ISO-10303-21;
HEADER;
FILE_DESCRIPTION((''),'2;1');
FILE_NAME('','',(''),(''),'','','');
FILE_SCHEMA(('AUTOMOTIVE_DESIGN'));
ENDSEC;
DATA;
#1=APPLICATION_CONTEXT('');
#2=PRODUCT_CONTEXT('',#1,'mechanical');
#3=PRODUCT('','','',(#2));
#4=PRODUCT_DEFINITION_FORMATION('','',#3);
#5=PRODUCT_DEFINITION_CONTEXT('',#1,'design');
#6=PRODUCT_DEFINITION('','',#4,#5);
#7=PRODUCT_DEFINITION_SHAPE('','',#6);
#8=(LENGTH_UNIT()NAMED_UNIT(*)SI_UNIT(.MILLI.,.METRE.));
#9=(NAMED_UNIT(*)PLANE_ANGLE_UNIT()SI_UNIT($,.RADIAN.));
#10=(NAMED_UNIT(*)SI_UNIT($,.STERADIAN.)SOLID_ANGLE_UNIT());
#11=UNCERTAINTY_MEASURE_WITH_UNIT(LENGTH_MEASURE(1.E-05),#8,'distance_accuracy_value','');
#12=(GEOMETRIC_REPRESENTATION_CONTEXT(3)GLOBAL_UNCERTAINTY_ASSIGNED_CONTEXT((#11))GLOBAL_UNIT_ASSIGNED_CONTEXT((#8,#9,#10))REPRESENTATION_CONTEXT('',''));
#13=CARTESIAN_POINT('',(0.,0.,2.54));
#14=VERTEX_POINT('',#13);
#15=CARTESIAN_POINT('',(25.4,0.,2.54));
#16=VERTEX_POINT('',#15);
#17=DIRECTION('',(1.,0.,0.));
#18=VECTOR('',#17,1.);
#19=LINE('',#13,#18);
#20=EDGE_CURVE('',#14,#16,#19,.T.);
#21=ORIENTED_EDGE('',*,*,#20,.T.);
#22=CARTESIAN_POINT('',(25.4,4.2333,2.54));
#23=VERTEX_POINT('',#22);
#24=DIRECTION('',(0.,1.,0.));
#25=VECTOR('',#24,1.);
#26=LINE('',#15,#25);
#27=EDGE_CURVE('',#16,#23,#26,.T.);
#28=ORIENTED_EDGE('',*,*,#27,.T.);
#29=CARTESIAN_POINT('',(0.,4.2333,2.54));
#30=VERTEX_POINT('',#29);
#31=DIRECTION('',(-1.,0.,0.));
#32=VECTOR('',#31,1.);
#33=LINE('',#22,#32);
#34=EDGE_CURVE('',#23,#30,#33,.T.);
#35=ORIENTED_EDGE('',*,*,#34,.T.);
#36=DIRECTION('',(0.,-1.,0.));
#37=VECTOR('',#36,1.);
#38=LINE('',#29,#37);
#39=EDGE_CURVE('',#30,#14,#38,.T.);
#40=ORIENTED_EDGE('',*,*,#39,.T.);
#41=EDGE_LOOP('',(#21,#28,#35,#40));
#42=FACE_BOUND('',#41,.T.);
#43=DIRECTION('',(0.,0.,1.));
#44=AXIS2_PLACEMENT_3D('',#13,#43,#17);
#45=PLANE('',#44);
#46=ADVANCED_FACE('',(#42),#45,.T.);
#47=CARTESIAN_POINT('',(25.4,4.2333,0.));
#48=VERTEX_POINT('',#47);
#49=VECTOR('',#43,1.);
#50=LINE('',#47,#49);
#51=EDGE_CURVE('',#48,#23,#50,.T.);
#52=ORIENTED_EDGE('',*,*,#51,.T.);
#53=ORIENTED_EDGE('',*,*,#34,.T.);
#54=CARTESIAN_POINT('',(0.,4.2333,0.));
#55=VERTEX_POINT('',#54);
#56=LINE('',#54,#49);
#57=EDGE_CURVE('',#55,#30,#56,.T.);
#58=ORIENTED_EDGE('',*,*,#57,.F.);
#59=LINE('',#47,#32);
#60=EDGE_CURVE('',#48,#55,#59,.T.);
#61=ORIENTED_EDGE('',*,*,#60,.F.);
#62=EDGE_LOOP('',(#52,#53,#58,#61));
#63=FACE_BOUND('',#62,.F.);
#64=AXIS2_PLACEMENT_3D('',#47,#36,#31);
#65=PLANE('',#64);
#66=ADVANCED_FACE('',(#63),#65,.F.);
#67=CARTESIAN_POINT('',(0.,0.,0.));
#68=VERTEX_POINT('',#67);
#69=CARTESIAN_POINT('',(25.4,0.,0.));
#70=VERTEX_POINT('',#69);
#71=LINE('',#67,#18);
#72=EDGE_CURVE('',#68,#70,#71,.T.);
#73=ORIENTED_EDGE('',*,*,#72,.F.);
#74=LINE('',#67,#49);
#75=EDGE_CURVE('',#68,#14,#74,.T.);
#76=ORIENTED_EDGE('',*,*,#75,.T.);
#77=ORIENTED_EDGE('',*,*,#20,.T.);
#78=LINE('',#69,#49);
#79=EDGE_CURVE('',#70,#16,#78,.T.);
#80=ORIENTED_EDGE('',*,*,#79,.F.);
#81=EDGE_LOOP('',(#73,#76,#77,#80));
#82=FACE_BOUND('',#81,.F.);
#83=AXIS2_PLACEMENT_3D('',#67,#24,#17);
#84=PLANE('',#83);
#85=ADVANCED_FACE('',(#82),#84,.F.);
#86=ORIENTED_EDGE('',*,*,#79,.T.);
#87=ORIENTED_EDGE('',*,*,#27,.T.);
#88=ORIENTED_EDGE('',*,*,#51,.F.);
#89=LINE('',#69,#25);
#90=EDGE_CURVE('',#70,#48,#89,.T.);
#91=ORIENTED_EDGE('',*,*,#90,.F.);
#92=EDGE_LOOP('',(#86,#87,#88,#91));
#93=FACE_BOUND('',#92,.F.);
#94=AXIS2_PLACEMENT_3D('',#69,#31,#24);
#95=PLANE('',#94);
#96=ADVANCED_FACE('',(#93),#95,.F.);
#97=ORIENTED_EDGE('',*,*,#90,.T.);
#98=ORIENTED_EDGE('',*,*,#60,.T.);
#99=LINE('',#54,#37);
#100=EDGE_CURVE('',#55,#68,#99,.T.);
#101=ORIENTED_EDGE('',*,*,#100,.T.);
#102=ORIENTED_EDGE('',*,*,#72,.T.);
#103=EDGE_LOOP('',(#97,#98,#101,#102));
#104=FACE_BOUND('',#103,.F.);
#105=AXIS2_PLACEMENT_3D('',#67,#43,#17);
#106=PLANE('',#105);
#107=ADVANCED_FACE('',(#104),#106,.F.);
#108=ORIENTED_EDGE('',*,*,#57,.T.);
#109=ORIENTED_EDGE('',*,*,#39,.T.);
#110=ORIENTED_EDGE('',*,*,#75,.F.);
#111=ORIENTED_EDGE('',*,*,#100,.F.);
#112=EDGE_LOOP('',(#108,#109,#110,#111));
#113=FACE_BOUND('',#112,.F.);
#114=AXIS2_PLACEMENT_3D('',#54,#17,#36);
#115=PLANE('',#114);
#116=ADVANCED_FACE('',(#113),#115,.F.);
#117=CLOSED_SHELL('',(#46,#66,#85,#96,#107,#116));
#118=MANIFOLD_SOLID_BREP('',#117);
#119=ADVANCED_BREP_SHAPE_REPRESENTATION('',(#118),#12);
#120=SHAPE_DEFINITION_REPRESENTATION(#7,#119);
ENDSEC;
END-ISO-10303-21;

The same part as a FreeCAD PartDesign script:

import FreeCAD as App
import Part
import Sketcher
from FreeCAD import Vector
Q = App.Units.Quantity

doc = App.newDocument("Part")
body = doc.addObject("PartDesign::Body", "Body")

# Sketch on XY plane
sketch1 = body.newObject("Sketcher::SketchObject", "Sketch")
sketch1.AttachmentSupport = (doc.getObject("XY_Plane"), [""])
sketch1.MapMode = "FlatFace"
sketch1.addGeometry(Part.LineSegment(Vector(0, 4.2, 0), Vector(0, 0, 0)), False)
sketch1.addGeometry(Part.LineSegment(Vector(0, 0, 0), Vector(25.4, 0, 0)), False)
sketch1.addGeometry(Part.LineSegment(Vector(25.4, 0, 0), Vector(25.4, 4.2, 0)), False)
sketch1.addGeometry(Part.LineSegment(Vector(25.4, 4.2, 0), Vector(0, 4.2, 0)), False)
sketch1.addConstraint(Sketcher.Constraint("Coincident", 0, 2, 1, 1))
sketch1.addConstraint(Sketcher.Constraint("Coincident", 1, 2, 2, 1))
sketch1.addConstraint(Sketcher.Constraint("Coincident", 2, 2, 3, 1))
sketch1.addConstraint(Sketcher.Constraint("Coincident", 3, 2, 0, 1))
sketch1.addConstraint(Sketcher.Constraint("Vertical", 0))
sketch1.addConstraint(Sketcher.Constraint("Horizontal", 1))
sketch1.addConstraint(Sketcher.Constraint("Vertical", 2))
sketch1.addConstraint(Sketcher.Constraint("Horizontal", 3))
sketch1.addConstraint(Sketcher.Constraint("Coincident", 0, 2, -1, 1))
sketch1.addConstraint(Sketcher.Constraint("DistanceX", 1, 1, 1, 2, Q("1 in")))
sketch1.addConstraint(Sketcher.Constraint("DistanceY", 0, 2, 0, 1, Q("4.2333 mm")))
pad1 = body.newObject("PartDesign::Pad", "Pad")
pad1.Profile = sketch1
pad1.Length = Q("0.1 in")

doc.recompute()
